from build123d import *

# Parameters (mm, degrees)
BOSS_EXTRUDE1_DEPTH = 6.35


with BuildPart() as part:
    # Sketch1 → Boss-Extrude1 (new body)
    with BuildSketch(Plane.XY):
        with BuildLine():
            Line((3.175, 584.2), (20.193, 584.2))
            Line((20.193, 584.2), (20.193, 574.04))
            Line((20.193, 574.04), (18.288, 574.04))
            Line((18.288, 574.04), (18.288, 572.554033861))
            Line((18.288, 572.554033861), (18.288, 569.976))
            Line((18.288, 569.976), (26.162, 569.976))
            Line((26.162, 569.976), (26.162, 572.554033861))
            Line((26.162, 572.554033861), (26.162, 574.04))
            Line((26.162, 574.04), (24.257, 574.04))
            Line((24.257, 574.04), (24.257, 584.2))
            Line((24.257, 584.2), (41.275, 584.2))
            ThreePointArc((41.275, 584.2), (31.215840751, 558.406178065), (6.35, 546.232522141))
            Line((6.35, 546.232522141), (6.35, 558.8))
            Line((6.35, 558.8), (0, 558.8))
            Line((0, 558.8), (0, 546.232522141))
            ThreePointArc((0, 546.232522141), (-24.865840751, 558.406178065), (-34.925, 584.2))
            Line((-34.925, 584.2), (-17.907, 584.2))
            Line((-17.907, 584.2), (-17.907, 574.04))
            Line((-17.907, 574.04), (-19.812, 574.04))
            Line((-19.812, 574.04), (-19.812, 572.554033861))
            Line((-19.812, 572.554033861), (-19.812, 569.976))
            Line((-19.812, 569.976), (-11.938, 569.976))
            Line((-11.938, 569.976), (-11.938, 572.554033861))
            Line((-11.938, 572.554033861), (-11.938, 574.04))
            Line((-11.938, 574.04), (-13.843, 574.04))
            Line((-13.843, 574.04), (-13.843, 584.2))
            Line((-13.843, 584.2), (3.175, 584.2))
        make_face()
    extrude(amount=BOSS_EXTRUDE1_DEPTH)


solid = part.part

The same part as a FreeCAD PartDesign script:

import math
import FreeCAD as App
import Part
import Sketcher
from FreeCAD import Vector
Q = App.Units.Quantity

doc = App.newDocument("Part")
body = doc.addObject("PartDesign::Body", "Body")

# Sketch on XY plane
sketch1 = body.newObject("Sketcher::SketchObject", "Sketch")
sketch1.AttachmentSupport = (doc.getObject("XY_Plane"), [""])
sketch1.MapMode = "FlatFace"
sketch1.addGeometry([
    Part.LineSegment(Vector(20.193, 574.04, 0), Vector(20.193, 584.2, 0)),  # 0
    Part.LineSegment(Vector(20.193, 584.2, 0), Vector(-13.843, 584.2, 0)),  # 1
    Part.LineSegment(Vector(-13.843, 584.2, 0), Vector(-13.843, 574.04, 0)),  # 2
    Part.LineSegment(Vector(-13.843, 574.04, 0), Vector(-11.938, 574.04, 0)),  # 3
    Part.LineSegment(Vector(-11.938, 574.04, 0), Vector(-11.938, 569.976, 0)),  # 4
    Part.LineSegment(Vector(-11.938, 569.976, 0), Vector(-19.812, 569.976, 0)),  # 5
    Part.LineSegment(Vector(-19.812, 569.976, 0), Vector(-19.812, 574.04, 0)),  # 6
    Part.LineSegment(Vector(-19.812, 574.04, 0), Vector(-17.907, 574.04, 0)),  # 7
    Part.LineSegment(Vector(-17.907, 574.04, 0), Vector(-17.907, 584.2, 0)),  # 8
    Part.LineSegment(Vector(-17.907, 584.2, 0), Vector(-34.925, 584.2, 0)),  # 9
    Part.ArcOfCircle(Part.Circle(Vector(3.175, 584.2, 0), Vector(0, 0, 1), 38.1), math.radians(180), math.radians(265.219808)),  # 10
    Part.LineSegment(Vector(0, 546.232522, 0), Vector(0, 558.8, 0)),  # 11
    Part.LineSegment(Vector(0, 558.8, 0), Vector(6.35, 558.8, 0)),  # 12
    Part.LineSegment(Vector(6.35, 558.8, 0), Vector(6.35, 546.232522, 0)),  # 13
    Part.ArcOfCircle(Part.Circle(Vector(3.175, 584.2, 0), Vector(0, 0, 1), 38.1), math.radians(-85.219808), math.radians(0)),  # 14
    Part.LineSegment(Vector(41.275, 584.2, 0), Vector(24.257, 584.2, 0)),  # 15
    Part.LineSegment(Vector(24.257, 584.2, 0), Vector(24.257, 574.04, 0)),  # 16
    Part.LineSegment(Vector(24.257, 574.04, 0), Vector(26.162, 574.04, 0)),  # 17
    Part.LineSegment(Vector(26.162, 574.04, 0), Vector(26.162, 569.976, 0)),  # 18
    Part.LineSegment(Vector(26.162, 569.976, 0), Vector(18.288, 569.976, 0)),  # 19
    Part.LineSegment(Vector(18.288, 569.976, 0), Vector(18.288, 574.04, 0)),  # 20
    Part.LineSegment(Vector(18.288, 574.04, 0), Vector(20.193, 574.04, 0)),  # 21
], False)
sketch1.addConstraint([
    Sketcher.Constraint("Coincident", 0, 2, 1, 1),
    Sketcher.Constraint("Coincident", 1, 2, 2, 1),
    Sketcher.Constraint("Coincident", 2, 2, 3, 1),
    Sketcher.Constraint("Coincident", 3, 2, 4, 1),
    Sketcher.Constraint("Coincident", 4, 2, 5, 1),
    Sketcher.Constraint("Coincident", 5, 2, 6, 1),
    Sketcher.Constraint("Coincident", 6, 2, 7, 1),
    Sketcher.Constraint("Coincident", 7, 2, 8, 1),
    Sketcher.Constraint("Coincident", 8, 2, 9, 1),
    Sketcher.Constraint("Coincident", 9, 2, 10, 1),
    Sketcher.Constraint("Coincident", 10, 2, 11, 1),
    Sketcher.Constraint("Coincident", 11, 2, 12, 1),
    Sketcher.Constraint("Coincident", 12, 2, 13, 1),
    Sketcher.Constraint("Coincident", 13, 2, 14, 1),
    Sketcher.Constraint("Coincident", 14, 2, 15, 1),
    Sketcher.Constraint("Coincident", 15, 2, 16, 1),
    Sketcher.Constraint("Coincident", 16, 2, 17, 1),
    Sketcher.Constraint("Coincident", 17, 2, 18, 1),
    Sketcher.Constraint("Coincident", 18, 2, 19, 1),
    Sketcher.Constraint("Coincident", 19, 2, 20, 1),
    Sketcher.Constraint("Coincident", 20, 2, 21, 1),
    Sketcher.Constraint("Coincident", 21, 2, 0, 1),
    Sketcher.Constraint("Vertical", 0),
    Sketcher.Constraint("Horizontal", 1),
    Sketcher.Constraint("Vertical", 2),
    Sketcher.Constraint("Horizontal", 3),
    Sketcher.Constraint("Vertical", 4),
    Sketcher.Constraint("Horizontal", 5),
    Sketcher.Constraint("Vertical", 6),
    Sketcher.Constraint("Horizontal", 7),
    Sketcher.Constraint("Vertical", 8),
    Sketcher.Constraint("Horizontal", 9),
    Sketcher.Constraint("Vertical", 11),
    Sketcher.Constraint("Horizontal", 12),
    Sketcher.Constraint("Vertical", 13),
    Sketcher.Constraint("Horizontal", 15),
    Sketcher.Constraint("Vertical", 16),
    Sketcher.Constraint("Horizontal", 17),
    Sketcher.Constraint("Vertical", 18),
    Sketcher.Constraint("Horizontal", 19),
    Sketcher.Constraint("Vertical", 20),
    Sketcher.Constraint("Horizontal", 21),
    Sketcher.Constraint("Coincident", 14, 3, 10, 3),
    Sketcher.Constraint("Equal", 10, 14),
    Sketcher.Constraint("PointOnObject", 10, 2, -2),
    Sketcher.Constraint("Horizontal", 14, 3, 0, 2),
    Sketcher.Constraint("Horizontal", 3, 2, 6, 2),
    Sketcher.Constraint("Horizontal", 1, 2, 8, 2),
    Sketcher.Constraint("Horizontal", 10, 2, 13, 2),
    Sketcher.Constraint("Horizontal", 9, 2, 14, 2),
    Sketcher.Constraint("Horizontal", 7, 2, 16, 2),
    Sketcher.Constraint("Horizontal", 5, 2, 18, 2),
    Sketcher.Constraint("Horizontal", 17, 2, 20, 2),
    Sketcher.Constraint("Equal", 3, 7),
    Sketcher.Constraint("Equal", 9, 15),
    Sketcher.Constraint("Equal", 7, 17),
    Sketcher.Constraint("Equal", 5, 19),
    Sketcher.Constraint("Equal", 17, 21),
    Sketcher.Constraint("Radius", 10, Q("1.5 in")),
    Sketcher.Constraint("DistanceY", 0, 1, 0, 2, Q("0.4 in")),
    Sketcher.Constraint("DistanceY", -1, 1, 10, 3, Q("23 in")),
    Sketcher.Constraint("DistanceY", -1, 1, 11, 2, Q("22 in")),
    Sketcher.Constraint("DistanceX", 1, 2, 1, 1, Q("1.34 in")),
    Sketcher.Constraint("DistanceX", 5, 2, 5, 1, Q("0.31 in")),
    Sketcher.Constraint("DistanceX", 9, 2, 9, 1, Q("0.67 in")),
    Sketcher.Constraint("DistanceX", 12, 1, 12, 2, Q("0.25 in")),
    Sketcher.Constraint("DistanceY", 4, 2, 4, 1, Q("0.16 in")),
])
pad1 = body.newObject("PartDesign::Pad", "Pad")
pad1.Profile = sketch1
pad1.Length = Q("0.25 in")

doc.recompute()
